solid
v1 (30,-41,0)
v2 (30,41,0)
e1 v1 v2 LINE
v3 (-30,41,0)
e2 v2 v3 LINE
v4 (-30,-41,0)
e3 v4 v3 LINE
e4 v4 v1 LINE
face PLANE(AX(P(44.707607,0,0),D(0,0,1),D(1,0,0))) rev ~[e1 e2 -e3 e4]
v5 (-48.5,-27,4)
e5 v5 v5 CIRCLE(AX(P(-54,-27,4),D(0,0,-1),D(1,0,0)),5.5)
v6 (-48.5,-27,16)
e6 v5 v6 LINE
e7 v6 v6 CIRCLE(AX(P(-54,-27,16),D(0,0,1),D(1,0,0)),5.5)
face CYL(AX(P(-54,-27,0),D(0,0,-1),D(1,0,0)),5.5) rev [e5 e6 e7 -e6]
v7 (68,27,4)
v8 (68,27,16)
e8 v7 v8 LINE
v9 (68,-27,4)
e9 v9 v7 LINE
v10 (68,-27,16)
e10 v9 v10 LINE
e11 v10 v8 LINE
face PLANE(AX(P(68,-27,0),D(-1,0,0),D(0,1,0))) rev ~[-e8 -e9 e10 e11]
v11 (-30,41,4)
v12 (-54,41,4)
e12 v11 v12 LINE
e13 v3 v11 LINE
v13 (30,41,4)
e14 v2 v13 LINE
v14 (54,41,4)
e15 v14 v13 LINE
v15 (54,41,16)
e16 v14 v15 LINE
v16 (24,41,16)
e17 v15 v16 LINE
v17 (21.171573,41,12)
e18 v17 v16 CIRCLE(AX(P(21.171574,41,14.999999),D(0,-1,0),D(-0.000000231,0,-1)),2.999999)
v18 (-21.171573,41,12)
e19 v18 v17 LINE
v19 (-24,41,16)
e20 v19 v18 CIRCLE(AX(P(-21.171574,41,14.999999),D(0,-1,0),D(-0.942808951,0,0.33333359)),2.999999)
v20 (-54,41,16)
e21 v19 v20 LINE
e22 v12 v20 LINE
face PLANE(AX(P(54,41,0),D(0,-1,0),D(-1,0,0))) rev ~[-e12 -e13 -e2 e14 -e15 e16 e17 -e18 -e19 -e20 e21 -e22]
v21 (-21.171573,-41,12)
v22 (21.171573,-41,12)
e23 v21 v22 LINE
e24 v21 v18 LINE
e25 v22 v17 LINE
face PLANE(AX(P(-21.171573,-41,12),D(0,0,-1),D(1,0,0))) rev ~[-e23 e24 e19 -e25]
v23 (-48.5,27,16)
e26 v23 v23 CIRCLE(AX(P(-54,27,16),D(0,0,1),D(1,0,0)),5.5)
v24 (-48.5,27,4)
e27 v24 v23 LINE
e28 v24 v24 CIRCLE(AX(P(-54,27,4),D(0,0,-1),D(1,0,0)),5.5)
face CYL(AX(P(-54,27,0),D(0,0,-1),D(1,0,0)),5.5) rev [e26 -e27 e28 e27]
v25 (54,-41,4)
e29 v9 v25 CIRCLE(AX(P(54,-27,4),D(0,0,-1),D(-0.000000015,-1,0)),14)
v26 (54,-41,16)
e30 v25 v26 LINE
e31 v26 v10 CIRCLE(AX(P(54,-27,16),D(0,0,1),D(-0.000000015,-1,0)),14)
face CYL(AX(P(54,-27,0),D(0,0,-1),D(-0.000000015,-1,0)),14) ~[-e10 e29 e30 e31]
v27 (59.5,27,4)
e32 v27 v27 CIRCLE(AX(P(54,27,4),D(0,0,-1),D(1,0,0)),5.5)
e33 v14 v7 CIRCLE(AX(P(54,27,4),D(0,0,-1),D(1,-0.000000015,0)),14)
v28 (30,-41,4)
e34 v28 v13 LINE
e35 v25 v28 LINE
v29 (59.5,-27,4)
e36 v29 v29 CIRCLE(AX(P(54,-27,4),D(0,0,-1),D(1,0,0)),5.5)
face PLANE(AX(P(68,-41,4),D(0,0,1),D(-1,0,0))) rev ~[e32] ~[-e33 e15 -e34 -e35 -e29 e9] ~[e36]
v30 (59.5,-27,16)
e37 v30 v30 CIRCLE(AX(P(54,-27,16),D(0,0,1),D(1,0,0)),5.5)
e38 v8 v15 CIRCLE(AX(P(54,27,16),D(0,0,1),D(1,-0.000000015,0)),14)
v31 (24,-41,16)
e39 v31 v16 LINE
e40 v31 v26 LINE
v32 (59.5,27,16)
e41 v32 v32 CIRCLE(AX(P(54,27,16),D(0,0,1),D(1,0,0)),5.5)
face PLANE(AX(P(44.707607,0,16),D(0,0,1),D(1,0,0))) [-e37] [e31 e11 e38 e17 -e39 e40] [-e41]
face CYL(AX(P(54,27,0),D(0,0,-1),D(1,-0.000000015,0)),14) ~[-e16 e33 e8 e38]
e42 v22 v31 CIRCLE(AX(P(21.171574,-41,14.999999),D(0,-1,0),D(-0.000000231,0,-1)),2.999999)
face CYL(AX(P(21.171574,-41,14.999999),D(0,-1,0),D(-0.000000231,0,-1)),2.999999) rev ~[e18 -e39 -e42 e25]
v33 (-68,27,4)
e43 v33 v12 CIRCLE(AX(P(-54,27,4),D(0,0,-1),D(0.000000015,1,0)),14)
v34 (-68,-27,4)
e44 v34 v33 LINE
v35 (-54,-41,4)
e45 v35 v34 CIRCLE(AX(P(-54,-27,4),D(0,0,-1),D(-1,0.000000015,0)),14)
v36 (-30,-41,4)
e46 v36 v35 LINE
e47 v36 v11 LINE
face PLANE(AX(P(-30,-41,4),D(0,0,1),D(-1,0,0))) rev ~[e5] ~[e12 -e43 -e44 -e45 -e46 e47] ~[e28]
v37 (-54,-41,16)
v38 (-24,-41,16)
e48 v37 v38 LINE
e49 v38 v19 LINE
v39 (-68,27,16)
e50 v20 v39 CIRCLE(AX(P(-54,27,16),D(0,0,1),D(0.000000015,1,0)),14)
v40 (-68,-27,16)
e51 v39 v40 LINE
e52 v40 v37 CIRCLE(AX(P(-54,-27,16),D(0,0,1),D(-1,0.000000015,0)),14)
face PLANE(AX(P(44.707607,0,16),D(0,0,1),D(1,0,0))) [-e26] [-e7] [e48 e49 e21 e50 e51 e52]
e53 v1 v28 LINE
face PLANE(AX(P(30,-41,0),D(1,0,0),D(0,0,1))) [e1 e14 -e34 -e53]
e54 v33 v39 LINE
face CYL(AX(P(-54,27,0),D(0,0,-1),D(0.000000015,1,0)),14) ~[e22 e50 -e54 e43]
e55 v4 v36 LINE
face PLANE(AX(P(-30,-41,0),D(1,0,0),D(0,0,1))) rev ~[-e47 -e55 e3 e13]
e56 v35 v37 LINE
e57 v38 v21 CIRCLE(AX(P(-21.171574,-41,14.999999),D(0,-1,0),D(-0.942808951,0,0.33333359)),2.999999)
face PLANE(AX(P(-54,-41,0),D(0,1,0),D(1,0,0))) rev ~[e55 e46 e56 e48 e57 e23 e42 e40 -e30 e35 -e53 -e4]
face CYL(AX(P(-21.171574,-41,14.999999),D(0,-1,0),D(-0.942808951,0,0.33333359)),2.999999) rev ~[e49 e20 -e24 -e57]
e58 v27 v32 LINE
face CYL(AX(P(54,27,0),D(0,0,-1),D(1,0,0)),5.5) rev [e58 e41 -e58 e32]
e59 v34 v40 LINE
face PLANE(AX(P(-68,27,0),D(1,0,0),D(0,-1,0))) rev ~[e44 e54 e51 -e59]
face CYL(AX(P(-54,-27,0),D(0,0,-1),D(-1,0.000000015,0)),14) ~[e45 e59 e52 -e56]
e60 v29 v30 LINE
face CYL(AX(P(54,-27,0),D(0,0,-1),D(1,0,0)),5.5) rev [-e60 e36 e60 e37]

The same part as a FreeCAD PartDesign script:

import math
import FreeCAD as App
import Part
import Sketcher

doc = App.newDocument("Part")
params = doc.addObject("Spreadsheet::Sheet", "Params")
for row, (alias, value) in enumerate([
    ("sketch1_diameter", "11 mm"),
    ("sketch1_radius", "14 mm"),
    ("sketch1_width", "108 mm"),
    ("sketch1_height", "54 mm"),
    ("pad1_length", "16 mm"),
    ("sketch2_radius", "2.999999 mm"),
    ("sketch2_width", "38 mm"),
    ("sketch2_width2", "48 mm"),
    ("sketch2_height", "4 mm"),
], start=1):
    params.set(f"A{row}", alias)
    params.set(f"B{row}", "=" + value)
    params.setAlias(f"B{row}", alias)

body = doc.addObject("PartDesign::Body", "Body")

sketch1 = doc.addObject("Sketcher::SketchObject", "Sketch")
body.addObject(sketch1)
sketch1.AttachmentSupport = (doc.XY_Plane, [""])
sketch1.MapMode = "FlatFace"
sketch1.addGeometry([
    Part.ArcOfCircle(Part.Circle(App.Vector(54, 27, 0), App.Vector(0, 0, 1), 14), math.radians(0), math.radians(90)),
    Part.LineSegment(App.Vector(54, 41, 0), App.Vector(-54, 41, 0)),
    Part.ArcOfCircle(Part.Circle(App.Vector(-54, 27, 0), App.Vector(0, 0, 1), 14), math.radians(90), math.radians(180)),
    Part.LineSegment(App.Vector(-68, 27, 0), App.Vector(-68, -27, 0)),
    Part.ArcOfCircle(Part.Circle(App.Vector(-54, -27, 0), App.Vector(0, 0, 1), 14), math.radians(180), math.radians(270)),
    Part.LineSegment(App.Vector(-54, -41, 0), App.Vector(54, -41, 0)),
    Part.ArcOfCircle(Part.Circle(App.Vector(54, -27, 0), App.Vector(0, 0, 1), 14), math.radians(-90), math.radians(0)),
    Part.LineSegment(App.Vector(68, -27, 0), App.Vector(68, 27, 0)),
    Part.Circle(App.Vector(-54, -27, 0), App.Vector(0, 0, 1), 6),
    Part.Circle(App.Vector(54, -27, 0), App.Vector(0, 0, 1), 6),
    Part.Circle(App.Vector(-54, 27, 0), App.Vector(0, 0, 1), 6),
    Part.Circle(App.Vector(54, 27, 0), App.Vector(0, 0, 1), 6),
], False)
sketch1.addConstraint([
    Sketcher.Constraint("Tangent", 0, 2, 1, 1),
    Sketcher.Constraint("Tangent", 1, 2, 2, 1),
    Sketcher.Constraint("Tangent", 2, 2, 3, 1),
    Sketcher.Constraint("Tangent", 3, 2, 4, 1),
    Sketcher.Constraint("Tangent", 4, 2, 5, 1),
    Sketcher.Constraint("Tangent", 5, 2, 6, 1),
    Sketcher.Constraint("Tangent", 6, 2, 7, 1),
    Sketcher.Constraint("Tangent", 7, 2, 0, 1),
    Sketcher.Constraint("Horizontal", 1),
    Sketcher.Constraint("Vertical", 3),
    Sketcher.Constraint("Horizontal", 5),
    Sketcher.Constraint("Vertical", 7),
    Sketcher.Constraint("Coincident", 8, 3, 4, 3),
    Sketcher.Constraint("Coincident", 9, 3, 6, 3),
    Sketcher.Constraint("Coincident", 10, 3, 2, 3),
    Sketcher.Constraint("Coincident", 11, 3, 0, 3),
    Sketcher.Constraint("Equal", 0, 2),
    Sketcher.Constraint("Equal", 2, 4),
    Sketcher.Constraint("Equal", 4, 6),
    Sketcher.Constraint("Equal", 8, 9),
    Sketcher.Constraint("Equal", 9, 10),
    Sketcher.Constraint("Equal", 10, 11),
    Sketcher.Constraint("Symmetric", 0, 3, 4, 3, -1, 1),
    Sketcher.Constraint("Diameter", 8, 11.0),
    Sketcher.Constraint("Radius", 0, 14.0),
    Sketcher.Constraint("DistanceX", 1, 2, 1, 1, 108.0),
    Sketcher.Constraint("DistanceY", 3, 2, 3, 1, 54.0),
])
sketch1.setExpression("Constraints[23]", "Params.sketch1_diameter")
sketch1.setExpression("Constraints[24]", "Params.sketch1_radius")
sketch1.setExpression("Constraints[25]", "Params.sketch1_width")
sketch1.setExpression("Constraints[26]", "Params.sketch1_height")
pad1 = doc.addObject("PartDesign::Pad", "Pad")
body.addObject(pad1)
pad1.Profile = sketch1
pad1.setExpression("Length", "Params.pad1_length")

sketch2 = doc.addObject("Sketcher::SketchObject", "Sketch001")
body.addObject(sketch2)
sketch2.AttachmentSupport = (doc.XZ_Plane, [""])
sketch2.MapMode = "FlatFace"
sketch2.AttachmentOffset = App.Placement(App.Vector(0, 0, 41), App.Rotation())
sketch2.addGeometry([
    Part.LineSegment(App.Vector(-68, 4, 0), App.Vector(-68, 0, 0)),
    Part.LineSegment(App.Vector(-68, 0, 0), App.Vector(-30, 0, 0)),
    Part.LineSegment(App.Vector(-30, 0, 0), App.Vector(-30, 4, 0)),
    Part.LineSegment(App.Vector(-30, 4, 0), App.Vector(-68, 4, 0)),
    Part.LineSegment(App.Vector(68, 0, 0), App.Vector(68, 4, 0)),
    Part.LineSegment(App.Vector(68, 4, 0), App.Vector(30, 4, 0)),
    Part.LineSegment(App.Vector(30, 4, 0), App.Vector(30, 0, 0)),
    Part.LineSegment(App.Vector(30, 0, 0), App.Vector(68, 0, 0)),
    Part.LineSegment(App.Vector(24, 16, 0), App.Vector(-24, 16, 0)),
    Part.ArcOfCircle(Part.Circle(App.Vector(-21.2, 15, 0), App.Vector(0, 0, 1), 3), math.radians(161), math.radians(270)),
    Part.LineSegment(App.Vector(-21.2, 12, 0), App.Vector(21.2, 12, 0)),
    Part.ArcOfCircle(Part.Circle(App.Vector(21.2, 15, 0), App.Vector(0, 0, 1), 3), math.radians(-90), math.radians(19)),
], False)
sketch2.addConstraint([
    Sketcher.Constraint("Coincident", 0, 2, 1, 1),
    Sketcher.Constraint("Coincident", 1, 2, 2, 1),
    Sketcher.Constraint("Coincident", 2, 2, 3, 1),
    Sketcher.Constraint("Coincident", 3, 2, 0, 1),
    Sketcher.Constraint("Coincident", 4, 2, 5, 1),
    Sketcher.Constraint("Coincident", 5, 2, 6, 1),
    Sketcher.Constraint("Coincident", 6, 2, 7, 1),
    Sketcher.Constraint("Coincident", 7, 2, 4, 1),
    Sketcher.Constraint("Coincident", 8, 2, 9, 1),
    Sketcher.Constraint("Tangent", 9, 2, 10, 1),
    Sketcher.Constraint("Tangent", 10, 2, 11, 1),
    Sketcher.Constraint("Coincident", 11, 2, 8, 1),
    Sketcher.Constraint("Vertical", 0),
    Sketcher.Constraint("Horizontal", 1),
    Sketcher.Constraint("Vertical", 2),
    Sketcher.Constraint("Horizontal", 3),
    Sketcher.Constraint("Vertical", 4),
    Sketcher.Constraint("Horizontal", 5),
    Sketcher.Constraint("Vertical", 6),
    Sketcher.Constraint("Horizontal", 7),
    Sketcher.Constraint("Horizontal", 8),
    Sketcher.Constraint("Horizontal", 10),
    Sketcher.Constraint("Equal", 9, 11),
    Sketcher.Constraint("Symmetric", 1, 2, 6, 2, -1, 1),
    Sketcher.Constraint("Symmetric", 3, 2, 4, 2, -2),
    Sketcher.Constraint("PointOnObject", 0, 2, -1),
    Sketcher.Constraint("Radius", 9, 2.999999),
    Sketcher.Constraint("DistanceX", 1, 1, 1, 2, 38.0),
    Sketcher.Constraint("DistanceX", 8, 2, 8, 1, 48.0),
    Sketcher.Constraint("DistanceY", 0, 2, 0, 1, 4.0),
    Sketcher.Constraint("DistanceY", -1, 1, 9, 3, 14.999999),
    Sketcher.Constraint("DistanceX", 0, 2, -1, 1, 68.0),
    Sketcher.Constraint("DistanceX", 8, 2, -1, 1, 24.0),
    Sketcher.Constraint("DistanceY", -1, 1, 8, 2, 16.0),
])
sketch2.setExpression("Constraints[26]", "Params.sketch2_radius")
sketch2.setExpression("Constraints[27]", "Params.sketch2_width")
sketch2.setExpression("Constraints[28]", "Params.sketch2_width2")
sketch2.setExpression("Constraints[29]", "Params.sketch2_height")
pocket1 = doc.addObject("PartDesign::Pocket", "Pocket")
body.addObject(pocket1)
pocket1.Profile = sketch2
pocket1.Type = "ThroughAll"

doc.recompute()
